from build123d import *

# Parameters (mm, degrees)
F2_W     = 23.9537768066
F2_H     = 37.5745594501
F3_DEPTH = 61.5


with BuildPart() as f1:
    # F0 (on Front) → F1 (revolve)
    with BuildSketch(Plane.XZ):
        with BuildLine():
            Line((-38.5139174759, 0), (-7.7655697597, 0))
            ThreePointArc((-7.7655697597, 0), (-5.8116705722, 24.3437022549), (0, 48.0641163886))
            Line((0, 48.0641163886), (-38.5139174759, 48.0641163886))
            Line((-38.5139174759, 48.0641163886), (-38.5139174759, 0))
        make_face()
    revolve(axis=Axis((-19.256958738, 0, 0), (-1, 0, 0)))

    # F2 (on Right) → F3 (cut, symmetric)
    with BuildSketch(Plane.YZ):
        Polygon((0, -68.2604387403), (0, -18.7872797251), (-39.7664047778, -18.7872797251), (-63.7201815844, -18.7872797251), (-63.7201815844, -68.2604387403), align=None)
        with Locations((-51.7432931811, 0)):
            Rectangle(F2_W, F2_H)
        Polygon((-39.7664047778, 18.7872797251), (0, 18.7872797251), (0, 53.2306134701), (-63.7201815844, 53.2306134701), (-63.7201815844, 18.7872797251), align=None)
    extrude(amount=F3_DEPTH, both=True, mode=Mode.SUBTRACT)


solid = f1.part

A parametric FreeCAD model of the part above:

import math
import FreeCAD as App
import Part
import Sketcher
Q = App.Units.Quantity


def add_polygon(sketch, points):
    """Adds a closed chain of lines whose ends are joined by coincident constraints."""
    first, n = sketch.GeometryCount, len(points)
    for a, b in zip(points, points[1:] + points[:1]):
        sketch.addGeometry(Part.LineSegment(App.Vector(*a, 0), App.Vector(*b, 0)), False)
    for i in range(n):
        sketch.addConstraint(Sketcher.Constraint("Coincident", first + i, 2, first + (i + 1) % n, 1))

doc = App.newDocument("Part")
params = doc.addObject("Spreadsheet::Sheet", "Params")
for row, (alias, value) in enumerate([
    ("revolution_angle", "360 deg"),
    ("pocket1_length", "123 mm"),
], start=1):
    params.set(f"A{row}", alias)
    params.set(f"B{row}", "=" + value)
    params.setAlias(f"B{row}", alias)

body = doc.addObject("PartDesign::Body", "Body")

sketch1 = body.newObject("Sketcher::SketchObject", "Sketch")
sketch1.AttachmentSupport = (doc.getObject("XZ_Plane"), [""])
sketch1.MapMode = "FlatFace"
sketch1.addGeometry([
    Part.LineSegment(App.Vector(-39, 0, 0), App.Vector(-8, 0, 0)),
    Part.ArcOfCircle(Part.Circle(App.Vector(145, 0, 0), App.Vector(0, 0, 1), 153), math.radians(161.64), math.radians(180)),
    Part.LineSegment(App.Vector(0, 48, 0), App.Vector(-39, 48, 0)),
    Part.LineSegment(App.Vector(-39, 48, 0), App.Vector(-39, 0, 0)),
], False)
sketch1.addConstraint([
    Sketcher.Constraint("Coincident", 0, 2, 1, 2),
    Sketcher.Constraint("Coincident", 1, 1, 2, 1),
    Sketcher.Constraint("Coincident", 2, 2, 3, 1),
    Sketcher.Constraint("Coincident", 3, 2, 0, 1),
    Sketcher.Constraint("Horizontal", 0),
    Sketcher.Constraint("Horizontal", 2),
    Sketcher.Constraint("Vertical", 3),
    Sketcher.Constraint("PointOnObject", 1, 3, -1),
    Sketcher.Constraint("PointOnObject", 0, 2, -1),
    Sketcher.Constraint("PointOnObject", 1, 1, -2),
    Sketcher.Constraint("Radius", 1, Q("152.626493 mm")),
    Sketcher.Constraint("DistanceX", 0, 1, 0, 2, Q("30.748348 mm")),
    Sketcher.Constraint("DistanceX", 2, 2, 2, 1, Q("38.513917 mm")),
])
revolution = body.newObject("PartDesign::Revolution", "Revolution")
revolution.Profile = sketch1
revolution.ReferenceAxis = (sketch1, ["H_Axis"])
revolution.setExpression("Angle", "Params.revolution_angle")

sketch2 = body.newObject("Sketcher::SketchObject", "Sketch001")
sketch2.AttachmentSupport = (doc.getObject("YZ_Plane"), [""])
sketch2.MapMode = "FlatFace"
add_polygon(sketch2, [(0, -68), (0, -19), (-40, -19), (-40, 19), (0, 19), (0, 53), (-64, 53), (-64, -68)])
sketch2.addConstraint([
    Sketcher.Constraint("Vertical", 0),
    Sketcher.Constraint("Horizontal", 1),
    Sketcher.Constraint("Vertical", 2),
    Sketcher.Constraint("Horizontal", 3),
    Sketcher.Constraint("Vertical", 4),
    Sketcher.Constraint("Horizontal", 5),
    Sketcher.Constraint("Vertical", 6),
    Sketcher.Constraint("Horizontal", 7),
    Sketcher.Constraint("Symmetric", 0, 2, 3, 2, -1, 1),
    Sketcher.Constraint("PointOnObject", 0, 2, -2),
    Sketcher.Constraint("DistanceX", 5, 2, 5, 1, Q("63.720182 mm")),
    Sketcher.Constraint("DistanceY", 0, 1, 0, 2, Q("49.473159 mm")),
    Sketcher.Constraint("DistanceY", 2, 1, 2, 2, Q("37.574559 mm")),
    Sketcher.Constraint("DistanceX", 1, 2, 1, 1, Q("39.766405 mm")),
    Sketcher.Constraint("DistanceY", 4, 1, 4, 2, Q("34.443334 mm")),
])
pocket1 = body.newObject("PartDesign::Pocket", "Pocket")
pocket1.Profile = sketch2
pocket1.setExpression("Length", "Params.pocket1_length")
pocket1.Midplane = True

doc.recompute()
